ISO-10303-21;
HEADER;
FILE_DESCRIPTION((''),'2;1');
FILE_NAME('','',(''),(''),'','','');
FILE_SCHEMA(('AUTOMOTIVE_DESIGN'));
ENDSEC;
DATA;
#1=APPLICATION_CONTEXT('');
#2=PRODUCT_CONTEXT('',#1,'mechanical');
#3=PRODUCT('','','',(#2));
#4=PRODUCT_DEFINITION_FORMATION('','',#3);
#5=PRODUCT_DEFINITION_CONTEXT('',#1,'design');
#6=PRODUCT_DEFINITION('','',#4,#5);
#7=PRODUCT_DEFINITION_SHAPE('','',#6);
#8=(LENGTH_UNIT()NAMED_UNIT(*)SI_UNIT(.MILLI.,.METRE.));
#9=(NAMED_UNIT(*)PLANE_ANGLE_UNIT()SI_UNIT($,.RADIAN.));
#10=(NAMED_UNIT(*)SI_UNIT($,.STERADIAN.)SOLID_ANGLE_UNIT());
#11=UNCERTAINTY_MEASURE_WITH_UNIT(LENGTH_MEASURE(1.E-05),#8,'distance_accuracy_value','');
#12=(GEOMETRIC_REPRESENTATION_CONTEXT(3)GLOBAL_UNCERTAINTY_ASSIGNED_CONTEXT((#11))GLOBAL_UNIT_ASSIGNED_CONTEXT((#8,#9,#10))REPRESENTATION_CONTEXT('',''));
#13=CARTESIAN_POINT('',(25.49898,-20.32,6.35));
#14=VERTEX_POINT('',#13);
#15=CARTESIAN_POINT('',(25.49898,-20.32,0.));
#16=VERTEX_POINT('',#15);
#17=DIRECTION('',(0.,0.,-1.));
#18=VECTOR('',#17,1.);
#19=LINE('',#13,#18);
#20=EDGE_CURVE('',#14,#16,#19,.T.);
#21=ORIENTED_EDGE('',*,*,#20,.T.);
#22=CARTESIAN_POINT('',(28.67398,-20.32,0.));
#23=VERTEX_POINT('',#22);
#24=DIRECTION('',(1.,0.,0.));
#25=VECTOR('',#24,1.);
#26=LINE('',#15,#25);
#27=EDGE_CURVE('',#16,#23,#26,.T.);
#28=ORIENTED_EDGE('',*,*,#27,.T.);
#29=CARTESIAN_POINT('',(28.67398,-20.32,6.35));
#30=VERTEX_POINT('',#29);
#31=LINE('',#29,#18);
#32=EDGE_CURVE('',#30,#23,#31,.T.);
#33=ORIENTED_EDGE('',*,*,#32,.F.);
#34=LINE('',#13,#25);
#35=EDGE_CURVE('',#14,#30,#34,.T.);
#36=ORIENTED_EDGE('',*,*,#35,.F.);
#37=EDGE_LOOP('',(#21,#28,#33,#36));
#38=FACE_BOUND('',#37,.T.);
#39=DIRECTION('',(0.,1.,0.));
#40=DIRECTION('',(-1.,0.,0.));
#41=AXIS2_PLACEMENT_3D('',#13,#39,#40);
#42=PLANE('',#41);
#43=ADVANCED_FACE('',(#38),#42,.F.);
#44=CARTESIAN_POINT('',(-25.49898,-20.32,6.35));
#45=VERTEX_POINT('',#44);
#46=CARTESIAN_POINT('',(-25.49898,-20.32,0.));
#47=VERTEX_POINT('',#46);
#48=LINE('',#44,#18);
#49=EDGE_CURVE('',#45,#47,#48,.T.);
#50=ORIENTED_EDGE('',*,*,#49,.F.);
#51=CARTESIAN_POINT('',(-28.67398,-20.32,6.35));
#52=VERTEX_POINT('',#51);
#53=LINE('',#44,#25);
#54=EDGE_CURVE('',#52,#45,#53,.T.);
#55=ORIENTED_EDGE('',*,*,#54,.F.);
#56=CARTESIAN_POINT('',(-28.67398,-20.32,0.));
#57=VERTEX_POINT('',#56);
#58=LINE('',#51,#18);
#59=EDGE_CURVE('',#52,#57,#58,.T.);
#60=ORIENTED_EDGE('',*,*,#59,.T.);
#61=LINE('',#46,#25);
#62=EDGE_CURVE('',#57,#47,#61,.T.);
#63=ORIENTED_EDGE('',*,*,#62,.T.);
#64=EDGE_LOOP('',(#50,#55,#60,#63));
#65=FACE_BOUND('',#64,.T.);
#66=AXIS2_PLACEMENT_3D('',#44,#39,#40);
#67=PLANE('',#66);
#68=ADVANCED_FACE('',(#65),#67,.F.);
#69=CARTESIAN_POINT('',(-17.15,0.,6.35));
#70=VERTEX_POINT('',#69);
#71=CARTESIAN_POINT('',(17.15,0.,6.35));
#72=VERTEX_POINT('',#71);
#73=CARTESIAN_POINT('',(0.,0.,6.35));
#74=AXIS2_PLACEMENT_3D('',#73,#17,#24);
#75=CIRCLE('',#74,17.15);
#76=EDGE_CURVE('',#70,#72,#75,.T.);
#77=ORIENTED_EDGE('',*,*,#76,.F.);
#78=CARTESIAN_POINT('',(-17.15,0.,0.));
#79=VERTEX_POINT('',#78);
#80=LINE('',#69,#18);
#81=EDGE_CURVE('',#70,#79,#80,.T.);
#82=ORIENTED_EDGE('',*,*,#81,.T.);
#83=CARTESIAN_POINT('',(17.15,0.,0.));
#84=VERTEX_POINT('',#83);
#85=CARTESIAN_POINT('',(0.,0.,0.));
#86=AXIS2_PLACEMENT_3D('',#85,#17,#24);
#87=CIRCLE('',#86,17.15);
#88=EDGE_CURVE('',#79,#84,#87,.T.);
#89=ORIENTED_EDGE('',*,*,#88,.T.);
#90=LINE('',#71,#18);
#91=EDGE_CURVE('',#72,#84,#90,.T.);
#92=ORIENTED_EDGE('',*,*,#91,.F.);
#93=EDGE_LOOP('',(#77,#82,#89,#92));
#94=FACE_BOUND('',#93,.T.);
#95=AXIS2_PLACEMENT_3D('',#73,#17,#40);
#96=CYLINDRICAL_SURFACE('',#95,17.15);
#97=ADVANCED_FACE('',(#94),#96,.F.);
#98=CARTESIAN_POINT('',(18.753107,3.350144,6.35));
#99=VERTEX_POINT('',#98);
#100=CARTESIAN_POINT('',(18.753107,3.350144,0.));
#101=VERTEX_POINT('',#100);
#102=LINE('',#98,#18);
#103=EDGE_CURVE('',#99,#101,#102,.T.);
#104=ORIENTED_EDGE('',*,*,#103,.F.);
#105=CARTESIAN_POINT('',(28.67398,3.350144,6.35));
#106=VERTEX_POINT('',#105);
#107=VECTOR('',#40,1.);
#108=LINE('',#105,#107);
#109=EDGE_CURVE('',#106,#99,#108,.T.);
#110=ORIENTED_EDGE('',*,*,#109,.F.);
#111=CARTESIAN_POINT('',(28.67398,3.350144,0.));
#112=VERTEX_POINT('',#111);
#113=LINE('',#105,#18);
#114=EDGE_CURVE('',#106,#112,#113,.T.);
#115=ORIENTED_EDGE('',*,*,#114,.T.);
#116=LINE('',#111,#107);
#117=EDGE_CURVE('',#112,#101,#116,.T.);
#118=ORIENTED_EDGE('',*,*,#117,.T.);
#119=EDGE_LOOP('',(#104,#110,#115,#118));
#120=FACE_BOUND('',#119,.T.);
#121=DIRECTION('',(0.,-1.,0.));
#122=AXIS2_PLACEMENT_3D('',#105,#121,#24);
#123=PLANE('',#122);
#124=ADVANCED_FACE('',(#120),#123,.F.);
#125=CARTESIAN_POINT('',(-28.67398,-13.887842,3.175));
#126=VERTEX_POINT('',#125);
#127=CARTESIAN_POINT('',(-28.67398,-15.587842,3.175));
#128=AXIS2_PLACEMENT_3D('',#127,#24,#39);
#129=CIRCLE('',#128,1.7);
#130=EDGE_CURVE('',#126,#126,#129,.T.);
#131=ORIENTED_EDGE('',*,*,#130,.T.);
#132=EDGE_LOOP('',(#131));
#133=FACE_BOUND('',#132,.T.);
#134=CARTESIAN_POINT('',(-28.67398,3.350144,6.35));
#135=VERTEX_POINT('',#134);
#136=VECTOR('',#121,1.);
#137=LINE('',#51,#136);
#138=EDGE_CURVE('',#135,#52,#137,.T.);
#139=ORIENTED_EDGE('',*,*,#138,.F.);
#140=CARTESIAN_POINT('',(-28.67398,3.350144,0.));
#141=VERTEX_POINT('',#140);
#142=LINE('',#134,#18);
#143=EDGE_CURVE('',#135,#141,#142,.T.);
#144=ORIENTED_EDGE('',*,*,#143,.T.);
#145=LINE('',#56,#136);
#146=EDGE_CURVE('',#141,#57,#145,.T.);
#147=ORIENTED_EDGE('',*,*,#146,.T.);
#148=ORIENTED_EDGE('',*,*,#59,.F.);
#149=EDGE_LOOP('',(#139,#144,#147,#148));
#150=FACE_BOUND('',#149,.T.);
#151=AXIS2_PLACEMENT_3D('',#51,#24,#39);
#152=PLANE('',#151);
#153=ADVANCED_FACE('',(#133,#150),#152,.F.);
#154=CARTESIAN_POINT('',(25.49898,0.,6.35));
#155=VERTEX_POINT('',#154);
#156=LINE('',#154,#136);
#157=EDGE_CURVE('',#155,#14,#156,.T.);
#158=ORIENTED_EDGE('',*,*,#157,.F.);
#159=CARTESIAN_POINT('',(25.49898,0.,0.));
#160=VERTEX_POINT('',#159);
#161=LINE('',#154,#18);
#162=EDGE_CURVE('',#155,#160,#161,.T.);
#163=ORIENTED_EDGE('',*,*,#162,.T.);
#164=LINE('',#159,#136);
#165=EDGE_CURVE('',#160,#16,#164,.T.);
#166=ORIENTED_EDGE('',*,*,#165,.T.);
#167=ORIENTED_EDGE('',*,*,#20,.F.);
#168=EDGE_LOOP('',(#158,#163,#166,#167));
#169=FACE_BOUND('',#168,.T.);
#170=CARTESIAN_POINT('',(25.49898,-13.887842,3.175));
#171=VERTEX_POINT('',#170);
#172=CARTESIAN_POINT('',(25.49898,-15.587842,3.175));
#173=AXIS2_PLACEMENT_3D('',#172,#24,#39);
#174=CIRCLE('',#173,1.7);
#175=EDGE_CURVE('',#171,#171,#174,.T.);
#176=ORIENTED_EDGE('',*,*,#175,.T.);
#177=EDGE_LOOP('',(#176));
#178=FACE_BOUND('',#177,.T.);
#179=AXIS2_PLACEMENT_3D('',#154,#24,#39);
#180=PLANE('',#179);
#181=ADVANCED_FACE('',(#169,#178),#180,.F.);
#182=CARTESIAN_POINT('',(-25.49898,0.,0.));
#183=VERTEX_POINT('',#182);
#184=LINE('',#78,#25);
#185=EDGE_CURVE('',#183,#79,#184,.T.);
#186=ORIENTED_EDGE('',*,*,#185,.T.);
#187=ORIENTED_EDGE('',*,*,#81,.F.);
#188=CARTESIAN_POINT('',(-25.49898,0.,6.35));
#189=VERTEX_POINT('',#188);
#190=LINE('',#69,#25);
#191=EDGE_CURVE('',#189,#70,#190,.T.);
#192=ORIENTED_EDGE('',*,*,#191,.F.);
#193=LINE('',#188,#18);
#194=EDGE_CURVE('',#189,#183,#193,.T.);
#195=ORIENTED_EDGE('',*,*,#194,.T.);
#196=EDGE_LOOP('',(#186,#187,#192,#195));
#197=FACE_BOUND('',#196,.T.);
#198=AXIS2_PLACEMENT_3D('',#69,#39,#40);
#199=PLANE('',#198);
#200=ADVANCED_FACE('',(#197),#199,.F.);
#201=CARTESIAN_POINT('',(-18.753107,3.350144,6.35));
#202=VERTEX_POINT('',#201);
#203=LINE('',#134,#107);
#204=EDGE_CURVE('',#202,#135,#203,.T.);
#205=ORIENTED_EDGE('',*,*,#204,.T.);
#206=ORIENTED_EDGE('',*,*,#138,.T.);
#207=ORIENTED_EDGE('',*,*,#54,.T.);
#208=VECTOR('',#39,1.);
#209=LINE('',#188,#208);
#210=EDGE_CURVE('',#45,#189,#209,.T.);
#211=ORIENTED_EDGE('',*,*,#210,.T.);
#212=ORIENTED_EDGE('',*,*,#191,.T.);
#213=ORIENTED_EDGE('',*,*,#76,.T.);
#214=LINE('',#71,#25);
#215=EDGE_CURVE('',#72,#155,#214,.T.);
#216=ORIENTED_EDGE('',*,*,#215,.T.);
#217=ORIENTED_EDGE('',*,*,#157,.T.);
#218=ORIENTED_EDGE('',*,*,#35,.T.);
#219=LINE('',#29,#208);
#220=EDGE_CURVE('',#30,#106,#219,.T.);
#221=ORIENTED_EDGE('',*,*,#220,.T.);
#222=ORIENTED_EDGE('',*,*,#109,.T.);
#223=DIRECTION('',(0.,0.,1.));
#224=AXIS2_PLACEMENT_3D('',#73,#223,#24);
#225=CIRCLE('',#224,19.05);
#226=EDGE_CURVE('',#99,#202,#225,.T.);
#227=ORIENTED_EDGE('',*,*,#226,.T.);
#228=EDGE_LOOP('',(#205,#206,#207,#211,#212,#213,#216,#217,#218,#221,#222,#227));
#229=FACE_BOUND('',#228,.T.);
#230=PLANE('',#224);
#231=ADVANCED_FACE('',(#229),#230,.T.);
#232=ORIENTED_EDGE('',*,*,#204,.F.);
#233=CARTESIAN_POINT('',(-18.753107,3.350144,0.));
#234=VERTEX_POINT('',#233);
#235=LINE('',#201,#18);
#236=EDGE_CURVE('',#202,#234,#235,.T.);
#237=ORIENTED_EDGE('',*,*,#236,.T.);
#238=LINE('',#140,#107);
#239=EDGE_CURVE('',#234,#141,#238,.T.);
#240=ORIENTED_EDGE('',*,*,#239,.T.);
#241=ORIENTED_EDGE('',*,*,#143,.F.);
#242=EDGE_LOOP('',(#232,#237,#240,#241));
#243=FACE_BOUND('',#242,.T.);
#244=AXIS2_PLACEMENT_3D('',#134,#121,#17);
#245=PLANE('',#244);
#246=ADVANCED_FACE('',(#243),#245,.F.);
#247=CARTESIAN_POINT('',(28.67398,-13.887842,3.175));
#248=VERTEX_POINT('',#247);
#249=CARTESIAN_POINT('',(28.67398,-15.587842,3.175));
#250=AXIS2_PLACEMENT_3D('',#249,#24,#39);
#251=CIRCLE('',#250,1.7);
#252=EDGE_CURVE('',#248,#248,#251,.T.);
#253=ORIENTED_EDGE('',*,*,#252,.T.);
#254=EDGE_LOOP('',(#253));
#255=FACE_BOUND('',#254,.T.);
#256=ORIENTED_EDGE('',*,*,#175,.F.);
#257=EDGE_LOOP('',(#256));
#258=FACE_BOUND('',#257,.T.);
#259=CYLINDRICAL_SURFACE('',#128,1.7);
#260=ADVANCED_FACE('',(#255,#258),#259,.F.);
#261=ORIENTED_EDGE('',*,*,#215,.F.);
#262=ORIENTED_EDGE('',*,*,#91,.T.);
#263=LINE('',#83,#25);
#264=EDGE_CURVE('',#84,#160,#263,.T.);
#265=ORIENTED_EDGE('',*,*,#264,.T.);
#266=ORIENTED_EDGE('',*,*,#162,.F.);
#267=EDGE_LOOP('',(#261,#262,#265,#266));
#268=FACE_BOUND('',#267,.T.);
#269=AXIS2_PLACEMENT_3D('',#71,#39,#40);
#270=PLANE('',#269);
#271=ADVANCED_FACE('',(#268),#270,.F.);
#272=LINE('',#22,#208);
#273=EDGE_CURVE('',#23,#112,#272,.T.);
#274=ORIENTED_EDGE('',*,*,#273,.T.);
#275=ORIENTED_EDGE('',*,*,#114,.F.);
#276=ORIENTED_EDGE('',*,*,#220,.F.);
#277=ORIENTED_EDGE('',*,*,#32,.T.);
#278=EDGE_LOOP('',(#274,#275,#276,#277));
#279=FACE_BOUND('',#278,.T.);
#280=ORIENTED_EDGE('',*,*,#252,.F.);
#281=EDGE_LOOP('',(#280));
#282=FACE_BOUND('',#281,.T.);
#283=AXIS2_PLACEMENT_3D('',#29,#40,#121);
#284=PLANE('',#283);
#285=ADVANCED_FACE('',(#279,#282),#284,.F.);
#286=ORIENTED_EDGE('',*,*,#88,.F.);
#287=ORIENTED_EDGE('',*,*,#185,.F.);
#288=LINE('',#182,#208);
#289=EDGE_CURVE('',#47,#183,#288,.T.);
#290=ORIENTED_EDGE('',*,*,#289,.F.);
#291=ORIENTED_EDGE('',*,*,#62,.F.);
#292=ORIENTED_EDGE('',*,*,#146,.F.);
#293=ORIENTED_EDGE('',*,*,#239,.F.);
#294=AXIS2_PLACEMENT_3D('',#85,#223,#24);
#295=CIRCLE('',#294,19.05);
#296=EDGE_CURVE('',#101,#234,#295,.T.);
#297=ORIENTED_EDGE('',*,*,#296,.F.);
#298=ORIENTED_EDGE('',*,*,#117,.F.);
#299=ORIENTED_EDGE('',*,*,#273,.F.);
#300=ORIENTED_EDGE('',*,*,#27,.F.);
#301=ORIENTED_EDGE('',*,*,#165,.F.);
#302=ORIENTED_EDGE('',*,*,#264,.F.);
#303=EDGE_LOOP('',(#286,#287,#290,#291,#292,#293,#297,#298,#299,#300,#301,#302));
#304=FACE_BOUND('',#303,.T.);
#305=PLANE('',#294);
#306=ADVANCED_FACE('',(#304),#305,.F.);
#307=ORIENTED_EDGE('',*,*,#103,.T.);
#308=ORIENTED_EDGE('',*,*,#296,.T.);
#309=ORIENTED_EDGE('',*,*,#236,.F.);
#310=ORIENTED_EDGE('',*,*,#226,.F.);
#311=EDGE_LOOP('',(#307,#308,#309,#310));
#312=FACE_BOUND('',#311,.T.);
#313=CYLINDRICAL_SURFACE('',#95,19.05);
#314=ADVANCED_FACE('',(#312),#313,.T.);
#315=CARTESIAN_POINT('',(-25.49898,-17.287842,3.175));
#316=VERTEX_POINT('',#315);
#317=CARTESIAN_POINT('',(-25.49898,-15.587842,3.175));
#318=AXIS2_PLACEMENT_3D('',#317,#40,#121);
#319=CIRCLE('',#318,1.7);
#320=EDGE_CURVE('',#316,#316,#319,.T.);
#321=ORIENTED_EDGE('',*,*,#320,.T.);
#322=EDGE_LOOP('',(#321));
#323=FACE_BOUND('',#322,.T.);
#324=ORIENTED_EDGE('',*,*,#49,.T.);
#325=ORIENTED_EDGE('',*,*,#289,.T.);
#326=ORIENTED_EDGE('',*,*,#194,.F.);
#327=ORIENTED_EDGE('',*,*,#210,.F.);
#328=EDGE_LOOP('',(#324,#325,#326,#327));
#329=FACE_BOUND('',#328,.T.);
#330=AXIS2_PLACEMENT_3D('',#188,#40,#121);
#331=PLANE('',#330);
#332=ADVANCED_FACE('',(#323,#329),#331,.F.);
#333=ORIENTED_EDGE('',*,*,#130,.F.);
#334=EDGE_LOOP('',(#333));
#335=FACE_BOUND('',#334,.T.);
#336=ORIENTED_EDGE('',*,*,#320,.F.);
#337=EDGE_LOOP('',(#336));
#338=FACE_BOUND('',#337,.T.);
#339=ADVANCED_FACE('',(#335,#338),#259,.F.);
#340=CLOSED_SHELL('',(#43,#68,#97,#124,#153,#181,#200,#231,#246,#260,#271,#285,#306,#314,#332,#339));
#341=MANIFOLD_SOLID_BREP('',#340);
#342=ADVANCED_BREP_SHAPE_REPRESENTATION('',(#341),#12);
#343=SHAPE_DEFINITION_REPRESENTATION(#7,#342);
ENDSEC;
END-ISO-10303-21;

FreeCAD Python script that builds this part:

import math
import FreeCAD as App
import Part
import Sketcher

V = App.Vector
Q = App.Units.Quantity

doc = App.newDocument("Part")
body = doc.addObject("PartDesign::Body", "Body")

# Sketch on XY plane
sketch1 = body.newObject("Sketcher::SketchObject", "Sketch")
sketch1.AttachmentSupport = (doc.getObject("XY_Plane"), [""])
sketch1.MapMode = "FlatFace"
sketch1.addGeometry([
    Part.LineSegment(V(-25.5, 0, 0), V(-17.1, 0, 0)),  # 0
    Part.ArcOfCircle(Part.Circle(V(0, 0, 0), V(0, 0, 1), 17.1), math.radians(0), math.radians(180)),  # 1
    Part.LineSegment(V(17.1, 0, 0), V(25.5, 0, 0)),  # 2
    Part.LineSegment(V(25.5, 0, 0), V(25.5, -20.3, 0)),  # 3
    Part.LineSegment(V(25.5, -20.3, 0), V(28.7, -20.3, 0)),  # 4
    Part.LineSegment(V(28.7, -20.3, 0), V(28.7, 3.4, 0)),  # 5
    Part.LineSegment(V(28.7, 3.4, 0), V(18.8, 3.4, 0)),  # 6
    Part.ArcOfCircle(Part.Circle(V(0, 0, 0), V(0, 0, 1), 19.1), math.radians(10), math.radians(170)),  # 7
    Part.LineSegment(V(-18.8, 3.4, 0), V(-28.7, 3.4, 0)),  # 8
    Part.LineSegment(V(-28.7, 3.4, 0), V(-28.7, -20.3, 0)),  # 9
    Part.LineSegment(V(-28.7, -20.3, 0), V(-25.5, -20.3, 0)),  # 10
    Part.LineSegment(V(-25.5, -20.3, 0), V(-25.5, 0, 0)),  # 11
], False)
sketch1.addConstraint([
    Sketcher.Constraint("Coincident", 0, 2, 1, 2),
    Sketcher.Constraint("Coincident", 1, 1, 2, 1),
    Sketcher.Constraint("Coincident", 2, 2, 3, 1),
    Sketcher.Constraint("Coincident", 3, 2, 4, 1),
    Sketcher.Constraint("Coincident", 4, 2, 5, 1),
    Sketcher.Constraint("Coincident", 5, 2, 6, 1),
    Sketcher.Constraint("Coincident", 6, 2, 7, 1),
    Sketcher.Constraint("Coincident", 7, 2, 8, 1),
    Sketcher.Constraint("Coincident", 8, 2, 9, 1),
    Sketcher.Constraint("Coincident", 9, 2, 10, 1),
    Sketcher.Constraint("Coincident", 10, 2, 11, 1),
    Sketcher.Constraint("Coincident", 11, 2, 0, 1),
    Sketcher.Constraint("Horizontal", 0),
    Sketcher.Constraint("Horizontal", 2),
    Sketcher.Constraint("Vertical", 3),
    Sketcher.Constraint("Horizontal", 4),
    Sketcher.Constraint("Vertical", 5),
    Sketcher.Constraint("Horizontal", 6),
    Sketcher.Constraint("Horizontal", 8),
    Sketcher.Constraint("Vertical", 9),
    Sketcher.Constraint("Horizontal", 10),
    Sketcher.Constraint("Vertical", 11),
    Sketcher.Constraint("Coincident", 1, 3, -1, 1),
    Sketcher.Constraint("Coincident", 7, 3, -1, 1),
    Sketcher.Constraint("Symmetric", 2, 2, 11, 2, -1, 1),
    Sketcher.Constraint("Symmetric", 5, 2, 8, 2, -2),
    Sketcher.Constraint("PointOnObject", 0, 2, -1),
    Sketcher.Constraint("Horizontal", 4, 2, 9, 2),
    Sketcher.Constraint("Radius", 7, Q("0.75 in")),
    Sketcher.Constraint("DistanceY", 3, 2, 3, 1, Q("0.8 in")),
    Sketcher.Constraint("DistanceX", 4, 1, 4, 2, Q("0.125 in")),
    Sketcher.Constraint("Radius", 1, 17.15),
    Sketcher.Constraint("DistanceX", 0, 1, 0, 2, Q("0.3287 in")),
    Sketcher.Constraint("DistanceX", 6, 2, 6, 1, 9.920873),
])
pad1 = body.newObject("PartDesign::Pad", "Pad")
pad1.Profile = sketch1
pad1.Length = Q("0.25 in")

# Sketch on YZ plane
sketch2 = body.newObject("Sketcher::SketchObject", "Sketch001")
sketch2.AttachmentSupport = (doc.getObject("YZ_Plane"), [""])
sketch2.MapMode = "FlatFace"
sketch2.AttachmentOffset = App.Placement(V(0, 0, 28.67398), App.Rotation())
sketch2.addGeometry(Part.Circle(V(-15.6, 3.2, 0), V(0, 0, 1), 1.7), False)
sketch2.addConstraint([
    Sketcher.Constraint("Diameter", 0, 3.4),
    Sketcher.Constraint("DistanceY", -1, 1, 0, 3, Q("0.125 in")),
    Sketcher.Constraint("DistanceX", 0, 3, -1, 1, 15.587842),
])
pocket1 = body.newObject("PartDesign::Pocket", "Pocket")
pocket1.Profile = sketch2
pocket1.Type = "ThroughAll"

doc.recompute()
